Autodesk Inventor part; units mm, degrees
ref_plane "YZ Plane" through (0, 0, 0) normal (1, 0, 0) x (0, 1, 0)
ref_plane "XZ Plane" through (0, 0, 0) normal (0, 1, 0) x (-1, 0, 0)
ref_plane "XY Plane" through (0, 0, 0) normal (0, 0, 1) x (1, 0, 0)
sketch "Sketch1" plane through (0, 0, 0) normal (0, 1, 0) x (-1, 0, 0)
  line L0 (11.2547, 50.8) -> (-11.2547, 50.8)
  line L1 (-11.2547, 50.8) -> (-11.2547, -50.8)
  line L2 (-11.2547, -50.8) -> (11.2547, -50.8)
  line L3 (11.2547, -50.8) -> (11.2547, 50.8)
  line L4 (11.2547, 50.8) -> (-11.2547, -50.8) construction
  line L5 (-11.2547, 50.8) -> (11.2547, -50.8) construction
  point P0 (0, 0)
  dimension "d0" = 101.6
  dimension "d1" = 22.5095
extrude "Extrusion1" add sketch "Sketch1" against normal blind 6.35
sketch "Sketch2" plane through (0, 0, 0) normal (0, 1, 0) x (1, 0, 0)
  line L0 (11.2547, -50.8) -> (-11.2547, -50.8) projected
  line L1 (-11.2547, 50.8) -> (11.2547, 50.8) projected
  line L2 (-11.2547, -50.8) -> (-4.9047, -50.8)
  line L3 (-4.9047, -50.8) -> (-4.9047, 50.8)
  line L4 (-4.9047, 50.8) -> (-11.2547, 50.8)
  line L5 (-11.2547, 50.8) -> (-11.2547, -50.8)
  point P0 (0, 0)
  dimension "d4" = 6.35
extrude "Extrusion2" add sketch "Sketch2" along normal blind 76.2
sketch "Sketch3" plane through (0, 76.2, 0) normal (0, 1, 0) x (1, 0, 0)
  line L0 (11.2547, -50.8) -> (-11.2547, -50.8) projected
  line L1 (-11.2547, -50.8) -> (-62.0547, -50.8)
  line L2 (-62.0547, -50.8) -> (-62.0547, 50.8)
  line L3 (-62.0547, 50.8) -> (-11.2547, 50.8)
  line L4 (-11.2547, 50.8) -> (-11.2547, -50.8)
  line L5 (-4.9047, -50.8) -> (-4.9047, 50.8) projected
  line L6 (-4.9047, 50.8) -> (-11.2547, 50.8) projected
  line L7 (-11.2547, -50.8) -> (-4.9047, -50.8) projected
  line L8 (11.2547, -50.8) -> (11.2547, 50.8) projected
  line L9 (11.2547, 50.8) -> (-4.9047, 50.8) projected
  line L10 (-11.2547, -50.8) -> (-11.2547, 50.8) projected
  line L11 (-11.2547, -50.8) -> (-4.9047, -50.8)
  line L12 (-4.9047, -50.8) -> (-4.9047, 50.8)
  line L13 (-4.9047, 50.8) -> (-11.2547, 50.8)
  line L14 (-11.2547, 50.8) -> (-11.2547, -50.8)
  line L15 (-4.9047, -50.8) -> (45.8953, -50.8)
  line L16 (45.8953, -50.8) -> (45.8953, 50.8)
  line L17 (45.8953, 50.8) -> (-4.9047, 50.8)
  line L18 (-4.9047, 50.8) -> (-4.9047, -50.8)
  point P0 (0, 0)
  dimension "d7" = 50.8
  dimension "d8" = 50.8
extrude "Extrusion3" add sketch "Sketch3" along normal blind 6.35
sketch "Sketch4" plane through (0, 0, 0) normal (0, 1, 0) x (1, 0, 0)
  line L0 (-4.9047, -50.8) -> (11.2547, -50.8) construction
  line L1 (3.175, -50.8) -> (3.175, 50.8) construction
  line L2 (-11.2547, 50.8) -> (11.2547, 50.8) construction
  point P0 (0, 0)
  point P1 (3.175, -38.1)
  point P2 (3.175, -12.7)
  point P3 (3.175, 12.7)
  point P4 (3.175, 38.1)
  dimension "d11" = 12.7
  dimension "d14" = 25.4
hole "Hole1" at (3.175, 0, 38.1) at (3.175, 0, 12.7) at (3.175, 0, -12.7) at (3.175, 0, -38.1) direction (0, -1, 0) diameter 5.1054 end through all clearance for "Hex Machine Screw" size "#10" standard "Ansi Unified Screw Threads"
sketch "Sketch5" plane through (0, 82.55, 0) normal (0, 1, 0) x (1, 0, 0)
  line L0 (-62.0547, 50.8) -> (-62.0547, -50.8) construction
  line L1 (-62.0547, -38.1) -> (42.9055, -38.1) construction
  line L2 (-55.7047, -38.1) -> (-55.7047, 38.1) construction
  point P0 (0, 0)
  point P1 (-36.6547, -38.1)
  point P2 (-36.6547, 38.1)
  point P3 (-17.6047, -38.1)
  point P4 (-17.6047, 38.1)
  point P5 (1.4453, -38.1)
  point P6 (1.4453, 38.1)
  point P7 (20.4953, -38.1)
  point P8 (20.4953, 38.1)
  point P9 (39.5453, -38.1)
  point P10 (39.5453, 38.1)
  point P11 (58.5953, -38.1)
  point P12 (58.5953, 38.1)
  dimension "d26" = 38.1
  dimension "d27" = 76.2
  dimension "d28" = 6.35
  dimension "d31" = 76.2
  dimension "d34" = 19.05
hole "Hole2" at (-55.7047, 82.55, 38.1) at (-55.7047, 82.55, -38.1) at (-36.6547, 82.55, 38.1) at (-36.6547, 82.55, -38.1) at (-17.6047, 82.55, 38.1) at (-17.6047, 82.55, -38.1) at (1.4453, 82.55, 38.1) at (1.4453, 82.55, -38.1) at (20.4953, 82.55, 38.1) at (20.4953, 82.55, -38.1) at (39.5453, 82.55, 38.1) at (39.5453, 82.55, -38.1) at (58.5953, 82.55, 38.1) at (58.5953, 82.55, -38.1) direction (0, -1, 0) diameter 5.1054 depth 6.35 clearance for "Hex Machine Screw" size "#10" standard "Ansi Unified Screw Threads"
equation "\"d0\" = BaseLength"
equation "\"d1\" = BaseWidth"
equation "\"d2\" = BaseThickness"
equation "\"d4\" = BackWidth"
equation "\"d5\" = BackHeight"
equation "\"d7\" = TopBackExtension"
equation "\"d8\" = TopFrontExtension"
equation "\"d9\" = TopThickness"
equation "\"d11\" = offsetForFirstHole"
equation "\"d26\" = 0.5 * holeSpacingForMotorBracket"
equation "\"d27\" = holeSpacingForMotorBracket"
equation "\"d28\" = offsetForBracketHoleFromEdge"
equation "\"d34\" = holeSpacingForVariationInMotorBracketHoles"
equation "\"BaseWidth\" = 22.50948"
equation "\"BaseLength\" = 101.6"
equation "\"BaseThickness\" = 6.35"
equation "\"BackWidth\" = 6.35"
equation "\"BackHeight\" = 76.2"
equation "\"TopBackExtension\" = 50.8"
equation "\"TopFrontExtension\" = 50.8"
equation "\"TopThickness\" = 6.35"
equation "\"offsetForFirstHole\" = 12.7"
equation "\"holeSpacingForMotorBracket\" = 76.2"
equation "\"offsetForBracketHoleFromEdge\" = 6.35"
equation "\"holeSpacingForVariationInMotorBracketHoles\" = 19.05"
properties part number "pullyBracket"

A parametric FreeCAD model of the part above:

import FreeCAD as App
import Part
import Sketcher

V = App.Vector
Q = App.Units.Quantity

doc = App.newDocument("Part")
body = doc.addObject("PartDesign::Body", "Body")

sketch1 = doc.addObject("Sketcher::SketchObject", "Sketch")
body.addObject(sketch1)
sketch1.AttachmentSupport = (doc.XZ_Plane, [""])
sketch1.MapMode = "FlatFace"
sketch1.addGeometry(Part.LineSegment(V(-11, -51, 0), V(-11, 51, 0)), False)
sketch1.addGeometry(Part.LineSegment(V(-11, 51, 0), V(11, 51, 0)), False)
sketch1.addGeometry(Part.LineSegment(V(11, 51, 0), V(11, -51, 0)), False)
sketch1.addGeometry(Part.LineSegment(V(11, -51, 0), V(-11, -51, 0)), False)
sketch1.addConstraint(Sketcher.Constraint("Coincident", 0, 2, 1, 1))
sketch1.addConstraint(Sketcher.Constraint("Coincident", 1, 2, 2, 1))
sketch1.addConstraint(Sketcher.Constraint("Coincident", 2, 2, 3, 1))
sketch1.addConstraint(Sketcher.Constraint("Coincident", 3, 2, 0, 1))
sketch1.addConstraint(Sketcher.Constraint("Vertical", 0))
sketch1.addConstraint(Sketcher.Constraint("Horizontal", 1))
sketch1.addConstraint(Sketcher.Constraint("Vertical", 2))
sketch1.addConstraint(Sketcher.Constraint("Horizontal", 3))
sketch1.addConstraint(Sketcher.Constraint("Symmetric", 0, 2, 2, 2, -1, 1))
sketch1.addConstraint(Sketcher.Constraint("DistanceY", 0, 1, 0, 2, Q("4 in")))
sketch1.addConstraint(Sketcher.Constraint("DistanceX", 1, 1, 1, 2, Q("0.8862 in")))
pad1 = doc.addObject("PartDesign::Pad", "Pad")
body.addObject(pad1)
pad1.Profile = sketch1
pad1.Length = Q("0.25 in")

sketch2 = doc.addObject("Sketcher::SketchObject", "Sketch001")
body.addObject(sketch2)
sketch2.AttachmentSupport = (doc.XZ_Plane, [""])
sketch2.MapMode = "FlatFace"
sketch2.addGeometry(Part.LineSegment(V(-11, 51, 0), V(-5, 51, 0)), False)
sketch2.addGeometry(Part.LineSegment(V(-5, 51, 0), V(-5, -51, 0)), False)
sketch2.addGeometry(Part.LineSegment(V(-5, -51, 0), V(-11, -51, 0)), False)
sketch2.addGeometry(Part.LineSegment(V(-11, -51, 0), V(-11, 51, 0)), False)
sketch2.addConstraint(Sketcher.Constraint("Coincident", 0, 2, 1, 1))
sketch2.addConstraint(Sketcher.Constraint("Coincident", 1, 2, 2, 1))
sketch2.addConstraint(Sketcher.Constraint("Coincident", 2, 2, 3, 1))
sketch2.addConstraint(Sketcher.Constraint("Coincident", 3, 2, 0, 1))
sketch2.addConstraint(Sketcher.Constraint("Horizontal", 0))
sketch2.addConstraint(Sketcher.Constraint("Vertical", 1))
sketch2.addConstraint(Sketcher.Constraint("Horizontal", 2))
sketch2.addConstraint(Sketcher.Constraint("Vertical", 3))
sketch2.addConstraint(Sketcher.Constraint("DistanceX", 0, 1, 0, 2, Q("0.25 in")))
sketch2.addConstraint(Sketcher.Constraint("DistanceY", 1, 2, 1, 1, Q("4 in")))
sketch2.addConstraint(Sketcher.Constraint("DistanceY", -1, 1, 0, 2, Q("2 in")))
sketch2.addConstraint(Sketcher.Constraint("DistanceX", 0, 2, -1, 1, Q("0.1931 in")))
pad2 = doc.addObject("PartDesign::Pad", "Pad001")
body.addObject(pad2)
pad2.Profile = sketch2
pad2.Length = Q("3 in")
pad2.Reversed = True

sketch3 = doc.addObject("Sketcher::SketchObject", "Sketch002")
body.addObject(sketch3)
sketch3.AttachmentSupport = (doc.XZ_Plane, [""])
sketch3.MapMode = "FlatFace"
sketch3.AttachmentOffset = App.Placement(V(0, 0, -3 * 25.4), App.Rotation())
sketch3.addGeometry(Part.LineSegment(V(46, 51, 0), V(46, -51, 0)), False)
sketch3.addGeometry(Part.LineSegment(V(46, -51, 0), V(-62, -51, 0)), False)
sketch3.addGeometry(Part.LineSegment(V(-62, -51, 0), V(-62, 51, 0)), False)
sketch3.addGeometry(Part.LineSegment(V(-62, 51, 0), V(46, 51, 0)), False)
sketch3.addConstraint(Sketcher.Constraint("Coincident", 0, 2, 1, 1))
sketch3.addConstraint(Sketcher.Constraint("Coincident", 1, 2, 2, 1))
sketch3.addConstraint(Sketcher.Constraint("Coincident", 2, 2, 3, 1))
sketch3.addConstraint(Sketcher.Constraint("Coincident", 3, 2, 0, 1))
sketch3.addConstraint(Sketcher.Constraint("Vertical", 0))
sketch3.addConstraint(Sketcher.Constraint("Horizontal", 1))
sketch3.addConstraint(Sketcher.Constraint("Vertical", 2))
sketch3.addConstraint(Sketcher.Constraint("Horizontal", 3))
sketch3.addConstraint(Sketcher.Constraint("DistanceY", 0, 2, -1, 1, Q("2 in")))
sketch3.addConstraint(Sketcher.Constraint("DistanceY", -1, 1, 2, 2, Q("2 in")))
sketch3.addConstraint(Sketcher.Constraint("DistanceX", 1, 2, 1, 1, Q("4.25 in")))
sketch3.addConstraint(Sketcher.Constraint("DistanceX", -1, 1, 0, 2, Q("1.8069 in")))
pad3 = doc.addObject("PartDesign::Pad", "Pad002")
body.addObject(pad3)
pad3.Profile = sketch3
pad3.Length = Q("0.25 in")
pad3.Reversed = True

sketch4 = doc.addObject("Sketcher::SketchObject", "Sketch003")
body.addObject(sketch4)
sketch4.AttachmentSupport = (doc.XZ_Plane, [""])
sketch4.MapMode = "FlatFace"
sketch4.addGeometry(Part.Circle(V(3.2, 38.1, 0), V(0, 0, 1), 2.6), False)
sketch4.addGeometry(Part.Circle(V(3.2, 12.7, 0), V(0, 0, 1), 2.6), False)
sketch4.addGeometry(Part.Circle(V(3.2, -12.7, 0), V(0, 0, 1), 2.6), False)
sketch4.addGeometry(Part.Circle(V(3.2, -38.1, 0), V(0, 0, 1), 2.6), False)
sketch4.addConstraint(Sketcher.Constraint("Equal", 0, 1))
sketch4.addConstraint(Sketcher.Constraint("Equal", 1, 2))
sketch4.addConstraint(Sketcher.Constraint("Equal", 2, 3))
sketch4.addConstraint(Sketcher.Constraint("Symmetric", 1, 3, 2, 3, -1))
sketch4.addConstraint(Sketcher.Constraint("Symmetric", 0, 3, 3, 3, -1))
sketch4.addConstraint(Sketcher.Constraint("Vertical", 0, 3, 1, 3))
sketch4.addConstraint(Sketcher.Constraint("Diameter", 0, Q("0.201 in")))
sketch4.addConstraint(Sketcher.Constraint("DistanceY", 1, 3, 0, 3, Q("1 in")))
sketch4.addConstraint(Sketcher.Constraint("DistanceY", 2, 3, 1, 3, Q("1 in")))
sketch4.addConstraint(Sketcher.Constraint("DistanceX", -1, 1, 0, 3, Q("0.125 in")))
doc.recompute()
hole = doc.addObject("PartDesign::Hole", "Hole")
body.addObject(hole)
hole.Profile = sketch4
hole.ThreadType = "None"
hole.Diameter = Q("0.201 in")
hole.DepthType = "ThroughAll"
hole.Reversed = True

sketch5 = doc.addObject("Sketcher::SketchObject", "Sketch004")
body.addObject(sketch5)
sketch5.AttachmentSupport = (doc.XZ_Plane, [""])
sketch5.MapMode = "FlatFace"
sketch5.AttachmentOffset = App.Placement(V(0, 0, -3.25 * 25.4), App.Rotation())
sketch5.addGeometry(Part.Circle(V(-55.7, 38.1, 0), V(0, 0, 1), 2.6), False)
sketch5.addGeometry(Part.Circle(V(-55.7, -38.1, 0), V(0, 0, 1), 2.6), False)
sketch5.addGeometry(Part.Circle(V(-36.7, 38.1, 0), V(0, 0, 1), 2.6), False)
sketch5.addGeometry(Part.Circle(V(-36.7, -38.1, 0), V(0, 0, 1), 2.6), False)
sketch5.addGeometry(Part.Circle(V(-17.6, 38.1, 0), V(0, 0, 1), 2.6), False)
sketch5.addGeometry(Part.Circle(V(-17.6, -38.1, 0), V(0, 0, 1), 2.6), False)
sketch5.addGeometry(Part.Circle(V(1.4, 38.1, 0), V(0, 0, 1), 2.6), False)
sketch5.addGeometry(Part.Circle(V(1.4, -38.1, 0), V(0, 0, 1), 2.6), False)
sketch5.addGeometry(Part.Circle(V(20.5, 38.1, 0), V(0, 0, 1), 2.6), False)
sketch5.addGeometry(Part.Circle(V(20.5, -38.1, 0), V(0, 0, 1), 2.6), False)
sketch5.addGeometry(Part.Circle(V(39.5, 38.1, 0), V(0, 0, 1), 2.6), False)
sketch5.addGeometry(Part.Circle(V(39.5, -38.1, 0), V(0, 0, 1), 2.6), False)
sketch5.addGeometry(Part.Circle(V(58.6, 38.1, 0), V(0, 0, 1), 2.6), False)
sketch5.addGeometry(Part.Circle(V(58.6, -38.1, 0), V(0, 0, 1), 2.6), False)
sketch5.addConstraint(Sketcher.Constraint("Equal", 0, 1))
sketch5.addConstraint(Sketcher.Constraint("Equal", 1, 2))
sketch5.addConstraint(Sketcher.Constraint("Equal", 2, 3))
sketch5.addConstraint(Sketcher.Constraint("Equal", 3, 4))
sketch5.addConstraint(Sketcher.Constraint("Equal", 4, 5))
sketch5.addConstraint(Sketcher.Constraint("Equal", 5, 6))
sketch5.addConstraint(Sketcher.Constraint("Equal", 6, 7))
sketch5.addConstraint(Sketcher.Constraint("Equal", 7, 8))
sketch5.addConstraint(Sketcher.Constraint("Equal", 8, 9))
sketch5.addConstraint(Sketcher.Constraint("Equal", 9, 10))
sketch5.addConstraint(Sketcher.Constraint("Equal", 10, 11))
sketch5.addConstraint(Sketcher.Constraint("Equal", 11, 12))
sketch5.addConstraint(Sketcher.Constraint("Equal", 12, 13))
sketch5.addConstraint(Sketcher.Constraint("Symmetric", 0, 3, 1, 3, -1))
sketch5.addConstraint(Sketcher.Constraint("Symmetric", 2, 3, 3, 3, -1))
sketch5.addConstraint(Sketcher.Constraint("Symmetric", 4, 3, 5, 3, -1))
sketch5.addConstraint(Sketcher.Constraint("Symmetric", 6, 3, 7, 3, -1))
sketch5.addConstraint(Sketcher.Constraint("Symmetric", 8, 3, 9, 3, -1))
sketch5.addConstraint(Sketcher.Constraint("Symmetric", 10, 3, 11, 3, -1))
sketch5.addConstraint(Sketcher.Constraint("Symmetric", 12, 3, 13, 3, -1))
sketch5.addConstraint(Sketcher.Constraint("Horizontal", 0, 3, 2, 3))
sketch5.addConstraint(Sketcher.Constraint("Horizontal", 2, 3, 4, 3))
sketch5.addConstraint(Sketcher.Constraint("Horizontal", 4, 3, 6, 3))
sketch5.addConstraint(Sketcher.Constraint("Horizontal", 6, 3, 8, 3))
sketch5.addConstraint(Sketcher.Constraint("Horizontal", 8, 3, 10, 3))
sketch5.addConstraint(Sketcher.Constraint("Horizontal", 10, 3, 12, 3))
sketch5.addConstraint(Sketcher.Constraint("Diameter", 0, Q("0.201 in")))
sketch5.addConstraint(Sketcher.Constraint("DistanceY", 1, 3, 0, 3, Q("3 in")))
sketch5.addConstraint(Sketcher.Constraint("DistanceX", 0, 3, 8, 3, Q("3 in")))
sketch5.addConstraint(Sketcher.Constraint("DistanceX", 2, 3, 10, 3, Q("3 in")))
sketch5.addConstraint(Sketcher.Constraint("DistanceX", 4, 3, 12, 3, Q("3 in")))
sketch5.addConstraint(Sketcher.Constraint("DistanceX", 0, 3, 4, 3, Q("1.5 in")))
sketch5.addConstraint(Sketcher.Constraint("DistanceX", 2, 3, 6, 3, Q("1.5 in")))
sketch5.addConstraint(Sketcher.Constraint("DistanceX", 0, 3, 2, 3, Q("0.75 in")))
sketch5.addConstraint(Sketcher.Constraint("DistanceX", 0, 3, -1, 1, Q("2.1931 in")))
doc.recompute()
hole2 = doc.addObject("PartDesign::Hole", "Hole001")
body.addObject(hole2)
hole2.Profile = sketch5
hole2.ThreadType = "None"
hole2.Diameter = Q("0.201 in")
hole2.DepthType = "Dimension"
hole2.Depth = Q("0.25 in")
hole2.DrillPoint = "Flat"
hole2.Reversed = True

doc.recompute()
